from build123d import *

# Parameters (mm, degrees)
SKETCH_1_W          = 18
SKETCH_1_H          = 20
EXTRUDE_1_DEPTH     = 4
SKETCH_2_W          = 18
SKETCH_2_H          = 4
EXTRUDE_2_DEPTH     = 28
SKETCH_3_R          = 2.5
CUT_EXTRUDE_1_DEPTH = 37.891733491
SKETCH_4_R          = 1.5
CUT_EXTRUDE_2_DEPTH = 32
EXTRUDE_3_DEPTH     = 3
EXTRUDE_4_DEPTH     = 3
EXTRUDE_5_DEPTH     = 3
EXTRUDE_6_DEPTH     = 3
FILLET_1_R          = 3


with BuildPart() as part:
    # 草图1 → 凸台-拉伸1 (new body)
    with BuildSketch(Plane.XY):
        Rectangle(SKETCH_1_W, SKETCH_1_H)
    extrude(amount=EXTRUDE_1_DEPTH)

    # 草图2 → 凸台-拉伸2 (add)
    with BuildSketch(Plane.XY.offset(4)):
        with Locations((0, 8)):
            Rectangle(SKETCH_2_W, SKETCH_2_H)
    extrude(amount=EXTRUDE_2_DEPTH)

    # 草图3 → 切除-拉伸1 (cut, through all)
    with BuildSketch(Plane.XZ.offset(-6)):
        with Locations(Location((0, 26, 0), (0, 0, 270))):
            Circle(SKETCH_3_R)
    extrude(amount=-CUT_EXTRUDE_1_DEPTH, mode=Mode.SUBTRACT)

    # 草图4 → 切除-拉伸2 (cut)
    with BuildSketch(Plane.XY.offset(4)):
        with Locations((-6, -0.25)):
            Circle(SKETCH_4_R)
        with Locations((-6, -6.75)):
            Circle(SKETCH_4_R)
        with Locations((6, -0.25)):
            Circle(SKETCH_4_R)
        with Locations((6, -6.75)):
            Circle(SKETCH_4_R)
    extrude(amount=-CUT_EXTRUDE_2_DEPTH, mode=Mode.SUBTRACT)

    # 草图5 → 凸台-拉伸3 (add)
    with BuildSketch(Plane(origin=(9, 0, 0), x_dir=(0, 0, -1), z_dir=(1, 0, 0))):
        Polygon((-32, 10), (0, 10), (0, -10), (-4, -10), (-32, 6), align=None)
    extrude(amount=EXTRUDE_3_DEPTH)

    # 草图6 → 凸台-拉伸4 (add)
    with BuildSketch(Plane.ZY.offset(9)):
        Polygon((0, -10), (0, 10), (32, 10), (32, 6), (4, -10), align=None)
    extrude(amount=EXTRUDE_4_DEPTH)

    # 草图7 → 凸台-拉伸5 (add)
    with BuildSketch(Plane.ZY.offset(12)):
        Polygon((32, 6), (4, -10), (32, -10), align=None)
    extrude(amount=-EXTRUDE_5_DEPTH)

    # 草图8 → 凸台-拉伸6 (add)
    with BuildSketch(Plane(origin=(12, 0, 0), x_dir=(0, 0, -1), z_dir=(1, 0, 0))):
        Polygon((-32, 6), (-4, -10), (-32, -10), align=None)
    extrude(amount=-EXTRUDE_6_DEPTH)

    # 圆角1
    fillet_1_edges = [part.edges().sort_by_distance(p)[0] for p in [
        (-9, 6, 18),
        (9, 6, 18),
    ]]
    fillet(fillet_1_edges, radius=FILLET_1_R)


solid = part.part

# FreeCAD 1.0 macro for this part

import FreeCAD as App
import Part
import Sketcher

V = App.Vector
Q = App.Units.Quantity


def edges_at(feature, points):
    """Names of the edges that pass closest to the given points."""
    edges = feature.Shape.Edges
    near = lambda p: min(range(len(edges)), key=lambda i: edges[i].distToShape(Part.Vertex(*p))[0])
    return sorted({f"Edge{near(p) + 1}" for p in points})

doc = App.newDocument("Part")
body = doc.addObject("PartDesign::Body", "Body")

sketch1 = body.newObject("Sketcher::SketchObject", "Sketch")
sketch1.AttachmentSupport = (doc.getObject("XY_Plane"), [""])
sketch1.MapMode = "FlatFace"
sketch1.addGeometry([
    Part.LineSegment(V(-9, 10, 0), V(-9, -10, 0)),
    Part.LineSegment(V(-9, -10, 0), V(9, -10, 0)),
    Part.LineSegment(V(9, -10, 0), V(9, 10, 0)),
    Part.LineSegment(V(9, 10, 0), V(-9, 10, 0)),
], False)
sketch1.addConstraint([
    Sketcher.Constraint("Coincident", 0, 2, 1, 1),
    Sketcher.Constraint("Coincident", 1, 2, 2, 1),
    Sketcher.Constraint("Coincident", 2, 2, 3, 1),
    Sketcher.Constraint("Coincident", 3, 2, 0, 1),
    Sketcher.Constraint("Vertical", 0),
    Sketcher.Constraint("Horizontal", 1),
    Sketcher.Constraint("Vertical", 2),
    Sketcher.Constraint("Horizontal", 3),
    Sketcher.Constraint("Symmetric", 0, 2, 2, 2, -1, 1),
    Sketcher.Constraint("DistanceX", 1, 1, 1, 2, Q("18 mm")),
    Sketcher.Constraint("DistanceY", 0, 2, 0, 1, Q("20 mm")),
])
pad1 = body.newObject("PartDesign::Pad", "Pad")
pad1.Profile = sketch1
pad1.Length = 4

sketch2 = body.newObject("Sketcher::SketchObject", "Sketch001")
sketch2.AttachmentSupport = (doc.getObject("XY_Plane"), [""])
sketch2.MapMode = "FlatFace"
sketch2.AttachmentOffset = App.Placement(V(0, 0, 4), App.Rotation())
sketch2.addGeometry([
    Part.LineSegment(V(-9, 10, 0), V(-9, 6, 0)),
    Part.LineSegment(V(-9, 6, 0), V(9, 6, 0)),
    Part.LineSegment(V(9, 6, 0), V(9, 10, 0)),
    Part.LineSegment(V(9, 10, 0), V(-9, 10, 0)),
], False)
sketch2.addConstraint([
    Sketcher.Constraint("Coincident", 0, 2, 1, 1),
    Sketcher.Constraint("Coincident", 1, 2, 2, 1),
    Sketcher.Constraint("Coincident", 2, 2, 3, 1),
    Sketcher.Constraint("Coincident", 3, 2, 0, 1),
    Sketcher.Constraint("Vertical", 0),
    Sketcher.Constraint("Horizontal", 1),
    Sketcher.Constraint("Vertical", 2),
    Sketcher.Constraint("Horizontal", 3),
    Sketcher.Constraint("DistanceX", 1, 1, 1, 2, Q("18 mm")),
    Sketcher.Constraint("DistanceY", 0, 2, 0, 1, Q("4 mm")),
    Sketcher.Constraint("DistanceX", 0, 2, -1, 1, Q("9 mm")),
    Sketcher.Constraint("DistanceY", -1, 1, 0, 2, Q("6 mm")),
])
pad2 = body.newObject("PartDesign::Pad", "Pad001")
pad2.Profile = sketch2
pad2.Length = 28

sketch3 = body.newObject("Sketcher::SketchObject", "Sketch002")
sketch3.AttachmentSupport = (doc.getObject("XZ_Plane"), [""])
sketch3.MapMode = "FlatFace"
sketch3.AttachmentOffset = App.Placement(V(0, 0, -6), App.Rotation())
sketch3.addGeometry(Part.Circle(V(0, 26, 0), V(0, 0, 1), 2.5), False)
sketch3.addConstraint([
    Sketcher.Constraint("PointOnObject", 0, 3, -2),
    Sketcher.Constraint("Diameter", 0, Q("5 mm")),
    Sketcher.Constraint("DistanceY", -1, 1, 0, 3, Q("26 mm")),
])
pocket1 = body.newObject("PartDesign::Pocket", "Pocket")
pocket1.Profile = sketch3
pocket1.Type = "ThroughAll"

sketch4 = body.newObject("Sketcher::SketchObject", "Sketch003")
sketch4.AttachmentSupport = (doc.getObject("XY_Plane"), [""])
sketch4.MapMode = "FlatFace"
sketch4.AttachmentOffset = App.Placement(V(0, 0, 4), App.Rotation())
sketch4.addGeometry([
    Part.Circle(V(-6, -0.25, 0), V(0, 0, 1), 1.5),
    Part.Circle(V(-6, -6.75, 0), V(0, 0, 1), 1.5),
    Part.Circle(V(6, -0.25, 0), V(0, 0, 1), 1.5),
    Part.Circle(V(6, -6.75, 0), V(0, 0, 1), 1.5),
], False)
sketch4.addConstraint([
    Sketcher.Constraint("Equal", 0, 1),
    Sketcher.Constraint("Equal", 1, 2),
    Sketcher.Constraint("Equal", 2, 3),
    Sketcher.Constraint("Symmetric", 0, 3, 2, 3, -2),
    Sketcher.Constraint("Symmetric", 1, 3, 3, 3, -2),
    Sketcher.Constraint("Vertical", 0, 3, 1, 3),
    Sketcher.Constraint("Diameter", 0, Q("3 mm")),
    Sketcher.Constraint("DistanceX", 0, 3, -1, 1, Q("6 mm")),
    Sketcher.Constraint("DistanceY", 1, 3, 0, 3, Q("6.5 mm")),
    Sketcher.Constraint("DistanceY", 0, 3, -1, 1, Q("0.25 mm")),
])
pocket2 = body.newObject("PartDesign::Pocket", "Pocket001")
pocket2.Profile = sketch4
pocket2.Length = 32

sketch5 = body.newObject("Sketcher::SketchObject", "Sketch004")
sketch5.AttachmentSupport = (doc.getObject("YZ_Plane"), [""])
sketch5.MapMode = "FlatFace"
sketch5.AttachmentOffset = App.Placement(V(0, 0, 9), App.Rotation())
sketch5.addGeometry([
    Part.LineSegment(V(10, 0, 0), V(10, 32, 0)),
    Part.LineSegment(V(10, 32, 0), V(6, 32, 0)),
    Part.LineSegment(V(6, 32, 0), V(-10, 4, 0)),
    Part.LineSegment(V(-10, 4, 0), V(-10, 0, 0)),
    Part.LineSegment(V(-10, 0, 0), V(10, 0, 0)),
], False)
sketch5.addConstraint([
    Sketcher.Constraint("Coincident", 0, 2, 1, 1),
    Sketcher.Constraint("Coincident", 1, 2, 2, 1),
    Sketcher.Constraint("Coincident", 2, 2, 3, 1),
    Sketcher.Constraint("Coincident", 3, 2, 4, 1),
    Sketcher.Constraint("Coincident", 4, 2, 0, 1),
    Sketcher.Constraint("Vertical", 0),
    Sketcher.Constraint("Horizontal", 1),
    Sketcher.Constraint("Vertical", 3),
    Sketcher.Constraint("Horizontal", 4),
    Sketcher.Constraint("Symmetric", 3, 2, 4, 2, -1, 1),
    Sketcher.Constraint("Equal", 1, 3),
    Sketcher.Constraint("DistanceX", 1, 2, 1, 1, Q("4 mm")),
    Sketcher.Constraint("DistanceX", 4, 1, 4, 2, Q("20 mm")),
    Sketcher.Constraint("DistanceY", 0, 1, 0, 2, Q("32 mm")),
])
pad3 = body.newObject("PartDesign::Pad", "Pad002")
pad3.Profile = sketch5
pad3.Length = 3

sketch6 = body.newObject("Sketcher::SketchObject", "Sketch005")
sketch6.AttachmentSupport = (doc.getObject("YZ_Plane"), [""])
sketch6.MapMode = "FlatFace"
sketch6.AttachmentOffset = App.Placement(V(0, 0, -9), App.Rotation())
sketch6.addGeometry([
    Part.LineSegment(V(10, 0, 0), V(-10, 0, 0)),
    Part.LineSegment(V(-10, 0, 0), V(-10, 4, 0)),
    Part.LineSegment(V(-10, 4, 0), V(6, 32, 0)),
    Part.LineSegment(V(6, 32, 0), V(10, 32, 0)),
    Part.LineSegment(V(10, 32, 0), V(10, 0, 0)),
], False)
sketch6.addConstraint([
    Sketcher.Constraint("Coincident", 0, 2, 1, 1),
    Sketcher.Constraint("Coincident", 1, 2, 2, 1),
    Sketcher.Constraint("Coincident", 2, 2, 3, 1),
    Sketcher.Constraint("Coincident", 3, 2, 4, 1),
    Sketcher.Constraint("Coincident", 4, 2, 0, 1),
    Sketcher.Constraint("Horizontal", 0),
    Sketcher.Constraint("Vertical", 1),
    Sketcher.Constraint("Horizontal", 3),
    Sketcher.Constraint("Vertical", 4),
    Sketcher.Constraint("Symmetric", 0, 2, 4, 2, -1, 1),
    Sketcher.Constraint("Equal", 3, 1),
    Sketcher.Constraint("DistanceX", 0, 2, 0, 1, Q("20 mm")),
    Sketcher.Constraint("DistanceX", 3, 1, 3, 2, Q("4 mm")),
    Sketcher.Constraint("DistanceY", 4, 2, 4, 1, Q("32 mm")),
])
pad4 = body.newObject("PartDesign::Pad", "Pad003")
pad4.Profile = sketch6
pad4.Length = 3
pad4.Reversed = True

sketch7 = body.newObject("Sketcher::SketchObject", "Sketch006")
sketch7.AttachmentSupport = (doc.getObject("YZ_Plane"), [""])
sketch7.MapMode = "FlatFace"
sketch7.AttachmentOffset = App.Placement(V(0, 0, -12), App.Rotation())
sketch7.addGeometry([
    Part.LineSegment(V(6, 32, 0), V(-10, 4, 0)),
    Part.LineSegment(V(-10, 4, 0), V(-10, 32, 0)),
    Part.LineSegment(V(-10, 32, 0), V(6, 32, 0)),
], False)
sketch7.addConstraint([
    Sketcher.Constraint("Coincident", 0, 2, 1, 1),
    Sketcher.Constraint("Coincident", 1, 2, 2, 1),
    Sketcher.Constraint("Coincident", 2, 2, 0, 1),
    Sketcher.Constraint("Vertical", 1),
    Sketcher.Constraint("Horizontal", 2),
    Sketcher.Constraint("DistanceX", 2, 1, 2, 2, Q("16 mm")),
    Sketcher.Constraint("DistanceY", 1, 1, 1, 2, Q("28 mm")),
    Sketcher.Constraint("DistanceX", 0, 2, -1, 1, Q("10 mm")),
    Sketcher.Constraint("DistanceY", -1, 1, 0, 2, Q("4 mm")),
])
pad5 = body.newObject("PartDesign::Pad", "Pad004")
pad5.Profile = sketch7
pad5.Length = 3

sketch8 = body.newObject("Sketcher::SketchObject", "Sketch007")
sketch8.AttachmentSupport = (doc.getObject("YZ_Plane"), [""])
sketch8.MapMode = "FlatFace"
sketch8.AttachmentOffset = App.Placement(V(0, 0, 12), App.Rotation())
sketch8.addGeometry([
    Part.LineSegment(V(-10, 4, 0), V(6, 32, 0)),
    Part.LineSegment(V(6, 32, 0), V(-10, 32, 0)),
    Part.LineSegment(V(-10, 32, 0), V(-10, 4, 0)),
], False)
sketch8.addConstraint([
    Sketcher.Constraint("Coincident", 0, 2, 1, 1),
    Sketcher.Constraint("Coincident", 1, 2, 2, 1),
    Sketcher.Constraint("Coincident", 2, 2, 0, 1),
    Sketcher.Constraint("Horizontal", 1),
    Sketcher.Constraint("Vertical", 2),
    Sketcher.Constraint("DistanceX", 1, 2, 1, 1, Q("16 mm")),
    Sketcher.Constraint("DistanceY", 2, 2, 2, 1, Q("28 mm")),
    Sketcher.Constraint("DistanceX", -1, 1, 0, 2, Q("6 mm")),
    Sketcher.Constraint("DistanceY", -1, 1, 0, 2, Q("32 mm")),
])
pad6 = body.newObject("PartDesign::Pad", "Pad005")
pad6.Profile = sketch8
pad6.Length = 3
pad6.Reversed = True
doc.recompute()

fillet = body.newObject("PartDesign::Fillet", "Fillet")
fillet.Base = (pad6, edges_at(pad6, [(-9, 6, 18), (9, 6, 18)]))
fillet.Radius = 3

doc.recompute()
